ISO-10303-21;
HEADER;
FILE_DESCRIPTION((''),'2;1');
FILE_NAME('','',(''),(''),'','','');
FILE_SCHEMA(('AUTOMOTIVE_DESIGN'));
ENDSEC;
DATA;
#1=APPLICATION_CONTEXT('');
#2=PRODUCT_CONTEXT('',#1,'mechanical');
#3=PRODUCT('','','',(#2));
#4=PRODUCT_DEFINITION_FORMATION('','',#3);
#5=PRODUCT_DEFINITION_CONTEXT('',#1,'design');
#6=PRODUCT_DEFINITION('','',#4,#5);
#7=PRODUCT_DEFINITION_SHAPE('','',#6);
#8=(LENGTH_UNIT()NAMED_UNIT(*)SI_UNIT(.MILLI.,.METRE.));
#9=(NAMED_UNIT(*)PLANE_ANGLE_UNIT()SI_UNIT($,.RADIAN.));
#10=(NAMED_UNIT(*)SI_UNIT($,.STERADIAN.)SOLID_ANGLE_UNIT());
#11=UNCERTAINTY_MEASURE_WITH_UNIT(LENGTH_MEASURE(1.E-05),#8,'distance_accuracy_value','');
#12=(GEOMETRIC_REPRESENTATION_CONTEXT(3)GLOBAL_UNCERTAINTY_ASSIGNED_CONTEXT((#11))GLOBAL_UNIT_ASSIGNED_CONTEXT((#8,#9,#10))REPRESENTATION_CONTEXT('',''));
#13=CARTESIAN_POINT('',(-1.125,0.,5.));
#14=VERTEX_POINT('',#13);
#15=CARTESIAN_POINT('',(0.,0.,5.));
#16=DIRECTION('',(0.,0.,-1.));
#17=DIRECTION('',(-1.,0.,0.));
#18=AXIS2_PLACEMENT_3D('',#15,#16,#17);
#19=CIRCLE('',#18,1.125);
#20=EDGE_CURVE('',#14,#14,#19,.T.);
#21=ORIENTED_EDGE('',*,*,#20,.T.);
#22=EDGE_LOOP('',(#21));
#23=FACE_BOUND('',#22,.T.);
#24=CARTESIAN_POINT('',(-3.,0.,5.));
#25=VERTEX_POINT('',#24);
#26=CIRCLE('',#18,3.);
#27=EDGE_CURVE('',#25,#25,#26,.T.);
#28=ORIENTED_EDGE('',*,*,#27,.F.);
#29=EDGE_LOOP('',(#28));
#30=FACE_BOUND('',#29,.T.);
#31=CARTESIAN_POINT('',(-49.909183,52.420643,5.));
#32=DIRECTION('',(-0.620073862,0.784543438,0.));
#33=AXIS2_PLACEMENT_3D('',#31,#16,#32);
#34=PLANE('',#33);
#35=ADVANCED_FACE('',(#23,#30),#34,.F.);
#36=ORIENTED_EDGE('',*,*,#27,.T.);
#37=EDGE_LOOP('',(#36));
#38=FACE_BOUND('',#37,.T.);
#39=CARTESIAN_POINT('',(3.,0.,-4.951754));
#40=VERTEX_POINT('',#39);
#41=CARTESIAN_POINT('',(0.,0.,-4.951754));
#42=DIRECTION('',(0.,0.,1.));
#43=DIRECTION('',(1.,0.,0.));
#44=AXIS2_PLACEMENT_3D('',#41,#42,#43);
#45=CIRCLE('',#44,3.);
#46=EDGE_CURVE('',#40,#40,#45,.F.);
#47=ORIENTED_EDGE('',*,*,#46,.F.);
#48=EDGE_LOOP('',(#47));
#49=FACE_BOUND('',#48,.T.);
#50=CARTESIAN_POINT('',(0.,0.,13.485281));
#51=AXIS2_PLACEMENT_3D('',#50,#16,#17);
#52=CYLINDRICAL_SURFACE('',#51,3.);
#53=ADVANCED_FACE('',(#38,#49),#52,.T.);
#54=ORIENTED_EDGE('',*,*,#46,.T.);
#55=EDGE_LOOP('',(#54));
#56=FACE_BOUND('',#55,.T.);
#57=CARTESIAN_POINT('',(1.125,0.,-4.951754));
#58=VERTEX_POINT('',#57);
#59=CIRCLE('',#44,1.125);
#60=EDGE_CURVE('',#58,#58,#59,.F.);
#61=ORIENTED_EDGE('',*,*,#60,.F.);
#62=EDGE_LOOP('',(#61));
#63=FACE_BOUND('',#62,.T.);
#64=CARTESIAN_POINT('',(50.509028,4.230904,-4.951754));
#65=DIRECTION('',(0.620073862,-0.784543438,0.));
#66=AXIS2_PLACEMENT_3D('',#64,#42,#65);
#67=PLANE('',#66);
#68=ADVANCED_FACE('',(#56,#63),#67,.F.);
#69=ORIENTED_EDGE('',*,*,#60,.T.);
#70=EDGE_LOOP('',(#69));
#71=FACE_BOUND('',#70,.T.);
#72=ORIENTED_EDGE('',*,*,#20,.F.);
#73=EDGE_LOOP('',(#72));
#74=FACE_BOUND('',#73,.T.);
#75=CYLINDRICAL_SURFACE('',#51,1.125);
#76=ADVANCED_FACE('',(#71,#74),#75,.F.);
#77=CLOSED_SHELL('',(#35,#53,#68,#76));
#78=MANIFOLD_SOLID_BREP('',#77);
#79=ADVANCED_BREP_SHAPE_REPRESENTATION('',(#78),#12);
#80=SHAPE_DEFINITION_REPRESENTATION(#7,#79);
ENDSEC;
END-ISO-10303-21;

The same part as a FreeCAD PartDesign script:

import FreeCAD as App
import Part
import Sketcher

V = App.Vector
Q = App.Units.Quantity

doc = App.newDocument("Part")
params = doc.addObject("Spreadsheet::Sheet", "Params")
for row, (alias, value) in enumerate([
    ("sketch1_diameter", "6 mm"),
    ("sketch1_diameter2", "2.25 mm"),
    ("pad1_length", "5 mm"),
    ("pad1_length2", "4.951754 mm"),
], start=1):
    params.set(f"A{row}", alias)
    params.set(f"B{row}", "=" + value)
    params.setAlias(f"B{row}", alias)

body = doc.addObject("PartDesign::Body", "Body")

# Sketch on XY plane
sketch1 = body.newObject("Sketcher::SketchObject", "Sketch")
sketch1.AttachmentSupport = (doc.getObject("XY_Plane"), [""])
sketch1.MapMode = "FlatFace"
sketch1.addGeometry([
    Part.Circle(V(0, 0, 0), V(0, 0, 1), 3),
    Part.Circle(V(0, 0, 0), V(0, 0, 1), 1.125),
], False)
sketch1.addConstraint([
    Sketcher.Constraint("Coincident", 0, 3, -1, 1),
    Sketcher.Constraint("Coincident", 1, 3, -1, 1),
    Sketcher.Constraint("Diameter", 0, Q("6 mm")),
    Sketcher.Constraint("Diameter", 1, Q("2.25 mm")),
])
sketch1.setExpression("Constraints[2]", "Params.sketch1_diameter")
sketch1.setExpression("Constraints[3]", "Params.sketch1_diameter2")
pad1 = body.newObject("PartDesign::Pad", "Pad")
pad1.Profile = sketch1
pad1.Type = "TwoLengths"
pad1.setExpression("Length", "Params.pad1_length")
pad1.setExpression("Length2", "Params.pad1_length2")

doc.recompute()
